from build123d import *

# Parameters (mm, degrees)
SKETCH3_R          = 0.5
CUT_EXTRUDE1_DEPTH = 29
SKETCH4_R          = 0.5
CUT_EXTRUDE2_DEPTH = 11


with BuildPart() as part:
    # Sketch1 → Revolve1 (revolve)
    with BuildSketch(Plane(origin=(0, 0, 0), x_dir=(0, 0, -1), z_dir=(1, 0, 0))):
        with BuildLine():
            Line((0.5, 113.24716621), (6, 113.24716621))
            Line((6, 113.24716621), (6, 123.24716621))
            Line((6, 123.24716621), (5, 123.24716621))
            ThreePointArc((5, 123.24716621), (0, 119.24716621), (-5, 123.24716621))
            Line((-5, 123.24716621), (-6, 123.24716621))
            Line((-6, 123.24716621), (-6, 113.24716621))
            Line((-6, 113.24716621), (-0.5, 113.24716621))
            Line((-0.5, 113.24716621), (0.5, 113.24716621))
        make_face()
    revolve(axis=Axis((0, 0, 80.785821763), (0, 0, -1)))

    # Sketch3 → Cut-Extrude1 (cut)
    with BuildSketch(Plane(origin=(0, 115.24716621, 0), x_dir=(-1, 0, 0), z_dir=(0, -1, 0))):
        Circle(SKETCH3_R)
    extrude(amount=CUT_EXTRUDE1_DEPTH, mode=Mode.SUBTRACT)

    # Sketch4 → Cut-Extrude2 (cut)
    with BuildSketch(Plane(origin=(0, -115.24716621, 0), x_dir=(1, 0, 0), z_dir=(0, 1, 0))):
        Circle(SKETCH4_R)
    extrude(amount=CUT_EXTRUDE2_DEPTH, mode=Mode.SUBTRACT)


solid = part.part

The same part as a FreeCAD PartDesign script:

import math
import FreeCAD as App
import Part
import Sketcher

V = App.Vector
Q = App.Units.Quantity

doc = App.newDocument("Part")
body = doc.addObject("PartDesign::Body", "Body")

# Sketch on YZ plane
sketch1 = body.newObject("Sketcher::SketchObject", "Sketch")
sketch1.AttachmentSupport = (doc.getObject("YZ_Plane"), [""])
sketch1.MapMode = "FlatFace"
sketch1.addGeometry([
    Part.LineSegment(V(113.2, -6, 0), V(123.2, -6, 0)),  # 0
    Part.LineSegment(V(123.2, -6, 0), V(123.2, -5, 0)),  # 1
    Part.ArcOfCircle(Part.Circle(V(124.4, 0, 0), V(0, 0, 1), 5.1), math.radians(103), math.radians(257)),  # 2
    Part.LineSegment(V(123.2, 5, 0), V(123.2, 6, 0)),  # 3
    Part.LineSegment(V(123.2, 6, 0), V(113.2, 6, 0)),  # 4
    Part.LineSegment(V(113.2, 6, 0), V(113.2, -6, 0)),  # 5
], False)
sketch1.addConstraint([
    Sketcher.Constraint("Coincident", 0, 2, 1, 1),
    Sketcher.Constraint("Coincident", 1, 2, 2, 2),
    Sketcher.Constraint("Coincident", 2, 1, 3, 1),
    Sketcher.Constraint("Coincident", 3, 2, 4, 1),
    Sketcher.Constraint("Coincident", 4, 2, 5, 1),
    Sketcher.Constraint("Coincident", 5, 2, 0, 1),
    Sketcher.Constraint("Horizontal", 0),
    Sketcher.Constraint("Vertical", 1),
    Sketcher.Constraint("Vertical", 3),
    Sketcher.Constraint("Horizontal", 4),
    Sketcher.Constraint("Vertical", 5),
    Sketcher.Constraint("Symmetric", 1, 2, 2, 1, -1),
    Sketcher.Constraint("Equal", 1, 3),
    Sketcher.Constraint("DistanceX", 0, 1, 0, 2, Q("10 mm")),
    Sketcher.Constraint("DistanceY", 1, 1, 1, 2, Q("1 mm")),
    Sketcher.Constraint("DistanceY", 5, 2, 5, 1, Q("12 mm")),
    Sketcher.Constraint("Radius", 2, Q("5.125 mm")),
    Sketcher.Constraint("DistanceX", -1, 1, 2, 3, Q("124.372166 mm")),
])
revolution = body.newObject("PartDesign::Revolution", "Revolution")
revolution.Profile = sketch1
revolution.ReferenceAxis = (sketch1, ["V_Axis"])
revolution.Angle = 360

# Sketch on XZ plane
sketch2 = body.newObject("Sketcher::SketchObject", "Sketch001")
sketch2.AttachmentSupport = (doc.getObject("XZ_Plane"), [""])
sketch2.MapMode = "FlatFace"
sketch2.AttachmentOffset = App.Placement(V(0, 0, -115.247166), App.Rotation())
sketch2.addGeometry(Part.Circle(V(0, 0, 0), V(0, 0, 1), 0.5), False)
sketch2.addConstraint([
    Sketcher.Constraint("Coincident", 0, 3, -1, 1),
    Sketcher.Constraint("Diameter", 0, Q("1 mm")),
])
pocket1 = body.newObject("PartDesign::Pocket", "Pocket")
pocket1.Profile = sketch2
pocket1.Length = 29
pocket1.Reversed = True

# Sketch on XZ plane
sketch3 = body.newObject("Sketcher::SketchObject", "Sketch002")
sketch3.AttachmentSupport = (doc.getObject("XZ_Plane"), [""])
sketch3.MapMode = "FlatFace"
sketch3.AttachmentOffset = App.Placement(V(0, 0, 115.247166), App.Rotation())
sketch3.addGeometry(Part.Circle(V(0, 0, 0), V(0, 0, 1), 0.5), False)
sketch3.addConstraint([
    Sketcher.Constraint("Coincident", 0, 3, -1, 1),
    Sketcher.Constraint("Diameter", 0, Q("1 mm")),
])
pocket2 = body.newObject("PartDesign::Pocket", "Pocket001")
pocket2.Profile = sketch3
pocket2.Length = 11

doc.recompute()
